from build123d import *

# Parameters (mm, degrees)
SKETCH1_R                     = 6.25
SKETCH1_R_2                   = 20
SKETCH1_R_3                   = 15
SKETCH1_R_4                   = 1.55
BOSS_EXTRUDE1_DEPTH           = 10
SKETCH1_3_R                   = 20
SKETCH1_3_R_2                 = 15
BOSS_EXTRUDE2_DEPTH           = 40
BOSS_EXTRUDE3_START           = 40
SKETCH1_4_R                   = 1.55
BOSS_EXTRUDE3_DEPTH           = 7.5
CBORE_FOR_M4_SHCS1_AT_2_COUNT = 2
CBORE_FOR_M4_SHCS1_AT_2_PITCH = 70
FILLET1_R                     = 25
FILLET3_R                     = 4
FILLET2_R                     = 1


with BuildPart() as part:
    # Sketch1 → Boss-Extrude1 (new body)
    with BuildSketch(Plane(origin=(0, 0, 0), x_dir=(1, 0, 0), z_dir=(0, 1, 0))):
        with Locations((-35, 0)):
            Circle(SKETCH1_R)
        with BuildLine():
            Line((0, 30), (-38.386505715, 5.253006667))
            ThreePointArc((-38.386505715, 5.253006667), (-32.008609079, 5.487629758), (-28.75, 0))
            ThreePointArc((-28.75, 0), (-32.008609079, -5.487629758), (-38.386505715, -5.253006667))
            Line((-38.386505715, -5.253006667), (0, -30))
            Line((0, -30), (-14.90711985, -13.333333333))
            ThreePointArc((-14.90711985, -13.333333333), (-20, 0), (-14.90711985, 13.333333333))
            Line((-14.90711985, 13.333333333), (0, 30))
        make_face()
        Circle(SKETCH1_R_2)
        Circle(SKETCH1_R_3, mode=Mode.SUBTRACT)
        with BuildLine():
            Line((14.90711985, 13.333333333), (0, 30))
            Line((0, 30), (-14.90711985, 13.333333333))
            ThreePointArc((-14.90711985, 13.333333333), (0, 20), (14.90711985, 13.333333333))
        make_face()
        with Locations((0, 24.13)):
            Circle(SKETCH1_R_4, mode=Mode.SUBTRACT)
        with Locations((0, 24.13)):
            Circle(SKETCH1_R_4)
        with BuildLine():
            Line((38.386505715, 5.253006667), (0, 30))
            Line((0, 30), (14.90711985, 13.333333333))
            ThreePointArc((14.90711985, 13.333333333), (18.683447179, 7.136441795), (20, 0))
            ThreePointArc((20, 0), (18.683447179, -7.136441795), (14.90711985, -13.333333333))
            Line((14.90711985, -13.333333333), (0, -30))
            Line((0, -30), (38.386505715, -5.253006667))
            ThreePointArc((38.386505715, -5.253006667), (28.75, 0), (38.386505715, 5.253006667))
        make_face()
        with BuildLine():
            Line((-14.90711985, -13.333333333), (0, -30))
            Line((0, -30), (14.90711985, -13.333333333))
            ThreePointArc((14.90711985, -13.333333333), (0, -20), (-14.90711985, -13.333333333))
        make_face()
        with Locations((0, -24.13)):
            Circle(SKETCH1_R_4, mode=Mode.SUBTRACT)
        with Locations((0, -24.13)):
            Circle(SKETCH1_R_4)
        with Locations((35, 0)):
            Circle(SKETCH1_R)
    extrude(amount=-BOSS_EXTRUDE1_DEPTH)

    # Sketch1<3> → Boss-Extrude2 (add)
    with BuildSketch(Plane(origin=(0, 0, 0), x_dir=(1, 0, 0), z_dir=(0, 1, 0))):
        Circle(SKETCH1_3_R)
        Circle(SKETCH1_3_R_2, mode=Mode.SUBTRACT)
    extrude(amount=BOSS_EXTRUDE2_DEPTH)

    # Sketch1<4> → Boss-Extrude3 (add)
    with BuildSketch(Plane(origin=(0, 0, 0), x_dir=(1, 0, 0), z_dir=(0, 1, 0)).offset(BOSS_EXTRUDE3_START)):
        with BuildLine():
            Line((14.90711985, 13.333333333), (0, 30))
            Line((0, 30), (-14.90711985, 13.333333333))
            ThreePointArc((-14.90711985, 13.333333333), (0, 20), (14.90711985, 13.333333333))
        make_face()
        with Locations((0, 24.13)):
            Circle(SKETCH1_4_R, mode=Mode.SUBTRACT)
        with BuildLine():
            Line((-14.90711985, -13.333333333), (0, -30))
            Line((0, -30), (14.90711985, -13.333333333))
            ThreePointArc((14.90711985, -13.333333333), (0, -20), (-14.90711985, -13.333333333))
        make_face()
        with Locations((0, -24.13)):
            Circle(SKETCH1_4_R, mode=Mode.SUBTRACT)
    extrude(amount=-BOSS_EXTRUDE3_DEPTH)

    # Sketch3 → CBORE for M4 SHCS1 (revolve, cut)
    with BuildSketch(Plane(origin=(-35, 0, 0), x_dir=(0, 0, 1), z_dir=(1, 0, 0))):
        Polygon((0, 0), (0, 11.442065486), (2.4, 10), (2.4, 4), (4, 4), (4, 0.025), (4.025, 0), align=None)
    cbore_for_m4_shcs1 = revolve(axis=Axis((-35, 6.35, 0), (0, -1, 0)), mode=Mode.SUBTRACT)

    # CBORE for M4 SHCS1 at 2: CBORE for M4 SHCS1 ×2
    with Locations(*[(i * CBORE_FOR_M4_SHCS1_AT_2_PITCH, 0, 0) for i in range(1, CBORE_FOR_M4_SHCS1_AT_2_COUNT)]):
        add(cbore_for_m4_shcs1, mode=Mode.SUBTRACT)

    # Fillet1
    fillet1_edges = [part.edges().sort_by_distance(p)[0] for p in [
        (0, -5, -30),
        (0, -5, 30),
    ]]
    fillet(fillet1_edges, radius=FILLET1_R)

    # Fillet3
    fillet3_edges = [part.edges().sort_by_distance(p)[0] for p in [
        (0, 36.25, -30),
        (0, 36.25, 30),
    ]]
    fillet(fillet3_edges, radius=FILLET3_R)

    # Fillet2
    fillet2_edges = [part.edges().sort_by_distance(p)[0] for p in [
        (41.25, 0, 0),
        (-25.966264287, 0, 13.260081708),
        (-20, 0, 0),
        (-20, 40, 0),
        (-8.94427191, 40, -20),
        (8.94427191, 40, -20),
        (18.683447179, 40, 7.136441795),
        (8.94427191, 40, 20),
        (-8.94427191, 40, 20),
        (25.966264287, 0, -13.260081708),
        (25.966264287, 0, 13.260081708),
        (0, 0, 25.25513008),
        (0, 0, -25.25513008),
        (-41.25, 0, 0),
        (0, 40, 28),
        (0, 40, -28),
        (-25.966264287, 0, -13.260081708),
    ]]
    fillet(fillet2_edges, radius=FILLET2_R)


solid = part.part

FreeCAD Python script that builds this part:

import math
import FreeCAD as App
import Part
import Sketcher
from FreeCAD import Vector
Q = App.Units.Quantity


def edges_at(feature, points):
    """Names of the edges that pass closest to the given points."""
    edges = feature.Shape.Edges
    near = lambda p: min(range(len(edges)), key=lambda i: edges[i].distToShape(Part.Vertex(*p))[0])
    return sorted({f"Edge{near(p) + 1}" for p in points})

doc = App.newDocument("Part")
body = doc.addObject("PartDesign::Body", "Body")

# Sketch on XZ plane
sketch1 = body.newObject("Sketcher::SketchObject", "Sketch")
sketch1.AttachmentSupport = (doc.getObject("XZ_Plane"), [""])
sketch1.MapMode = "FlatFace"
sketch1.addGeometry(Part.LineSegment(Vector(-38, 5, 0), Vector(0, 30, 0)), False)
sketch1.addGeometry(Part.LineSegment(Vector(0, 30, 0), Vector(38, 5, 0)), False)
sketch1.addGeometry(Part.ArcOfCircle(Part.Circle(Vector(35, 0, 0), Vector(0, 0, 1), 6), math.radians(-57), math.radians(57)), False)
sketch1.addGeometry(Part.LineSegment(Vector(38, -5, 0), Vector(0, -30, 0)), False)
sketch1.addGeometry(Part.LineSegment(Vector(0, -30, 0), Vector(-38, -5, 0)), False)
sketch1.addGeometry(Part.ArcOfCircle(Part.Circle(Vector(-35, 0, 0), Vector(0, 0, 1), 6), math.radians(123), math.radians(237)), False)
sketch1.addGeometry(Part.Circle(Vector(0, 0, 0), Vector(0, 0, 1), 15), False)
sketch1.addConstraint(Sketcher.Constraint("Coincident", 0, 2, 1, 1))
sketch1.addConstraint(Sketcher.Constraint("Tangent", 1, 2, 2, 2))
sketch1.addConstraint(Sketcher.Constraint("Tangent", 2, 1, 3, 1))
sketch1.addConstraint(Sketcher.Constraint("Coincident", 3, 2, 4, 1))
sketch1.addConstraint(Sketcher.Constraint("Tangent", 4, 2, 5, 2))
sketch1.addConstraint(Sketcher.Constraint("Tangent", 5, 1, 0, 1))
sketch1.addConstraint(Sketcher.Constraint("Coincident", 6, 3, -1, 1))
sketch1.addConstraint(Sketcher.Constraint("Equal", 2, 5))
sketch1.addConstraint(Sketcher.Constraint("Symmetric", 2, 3, 5, 3, -1, 1))
sketch1.addConstraint(Sketcher.Constraint("Symmetric", 0, 2, 3, 2, -1, 1))
sketch1.addConstraint(Sketcher.Constraint("Symmetric", 2, 1, 4, 2, -2))
sketch1.addConstraint(Sketcher.Constraint("Diameter", 6, Q("30 mm")))
sketch1.addConstraint(Sketcher.Constraint("Radius", 2, Q("6.25 mm")))
sketch1.addConstraint(Sketcher.Constraint("DistanceX", -1, 1, 2, 3, Q("35 mm")))
sketch1.addConstraint(Sketcher.Constraint("DistanceY", -1, 1, 0, 2, Q("30 mm")))
pad1 = body.newObject("PartDesign::Pad", "Pad")
pad1.Profile = sketch1
pad1.Length = 10

# Sketch on XZ plane
sketch2 = body.newObject("Sketcher::SketchObject", "Sketch001")
sketch2.AttachmentSupport = (doc.getObject("XZ_Plane"), [""])
sketch2.MapMode = "FlatFace"
sketch2.addGeometry(Part.Circle(Vector(0, 0, 0), Vector(0, 0, 1), 20), False)
sketch2.addGeometry(Part.Circle(Vector(0, 0, 0), Vector(0, 0, 1), 15), False)
sketch2.addConstraint(Sketcher.Constraint("Coincident", 0, 3, -1, 1))
sketch2.addConstraint(Sketcher.Constraint("Coincident", 1, 3, -1, 1))
sketch2.addConstraint(Sketcher.Constraint("Diameter", 0, Q("40 mm")))
sketch2.addConstraint(Sketcher.Constraint("Diameter", 1, Q("30 mm")))
pad2 = body.newObject("PartDesign::Pad", "Pad001")
pad2.Profile = sketch2
pad2.Length = 40
pad2.Reversed = True

# Sketch on XZ plane
sketch3 = body.newObject("Sketcher::SketchObject", "Sketch002")
sketch3.AttachmentSupport = (doc.getObject("XZ_Plane"), [""])
sketch3.MapMode = "FlatFace"
sketch3.AttachmentOffset = App.Placement(Vector(0, 0, -40), App.Rotation())
sketch3.addGeometry(Part.LineSegment(Vector(14.9, -13.3, 0), Vector(0, -30, 0)), False)
sketch3.addGeometry(Part.LineSegment(Vector(0, -30, 0), Vector(-14.9, -13.3, 0)), False)
sketch3.addGeometry(Part.ArcOfCircle(Part.Circle(Vector(0, 0, 0), Vector(0, 0, 1), 20), math.radians(-138), math.radians(-42)), False)
sketch3.addGeometry(Part.Circle(Vector(0, -24.1, 0), Vector(0, 0, 1), 1.6), False)
sketch3.addGeometry(Part.LineSegment(Vector(-14.9, 13.3, 0), Vector(0, 30, 0)), False)
sketch3.addGeometry(Part.LineSegment(Vector(0, 30, 0), Vector(14.9, 13.3, 0)), False)
sketch3.addGeometry(Part.ArcOfCircle(Part.Circle(Vector(0, 0, 0), Vector(0, 0, 1), 20), math.radians(42), math.radians(138)), False)
sketch3.addGeometry(Part.Circle(Vector(0, 24.1, 0), Vector(0, 0, 1), 1.6), False)
sketch3.addConstraint(Sketcher.Constraint("Coincident", 0, 2, 1, 1))
sketch3.addConstraint(Sketcher.Constraint("Tangent", 1, 2, 2, 1))
sketch3.addConstraint(Sketcher.Constraint("Tangent", 2, 2, 0, 1))
sketch3.addConstraint(Sketcher.Constraint("Coincident", 4, 2, 5, 1))
sketch3.addConstraint(Sketcher.Constraint("Tangent", 5, 2, 6, 1))
sketch3.addConstraint(Sketcher.Constraint("Tangent", 6, 2, 4, 1))
sketch3.addConstraint(Sketcher.Constraint("Coincident", 2, 3, -1, 1))
sketch3.addConstraint(Sketcher.Constraint("Coincident", 6, 3, -1, 1))
sketch3.addConstraint(Sketcher.Constraint("Equal", 2, 6))
sketch3.addConstraint(Sketcher.Constraint("Equal", 3, 7))
sketch3.addConstraint(Sketcher.Constraint("Symmetric", 3, 3, 7, 3, -1, 1))
sketch3.addConstraint(Sketcher.Constraint("Symmetric", 0, 2, 4, 2, -1, 1))
sketch3.addConstraint(Sketcher.Constraint("PointOnObject", 3, 3, -2))
sketch3.addConstraint(Sketcher.Constraint("PointOnObject", 0, 2, -2))
sketch3.addConstraint(Sketcher.Constraint("Radius", 2, Q("20 mm")))
sketch3.addConstraint(Sketcher.Constraint("Diameter", 3, Q("3.1 mm")))
sketch3.addConstraint(Sketcher.Constraint("DistanceY", 0, 2, -1, 1, Q("30 mm")))
sketch3.addConstraint(Sketcher.Constraint("DistanceY", 3, 3, -1, 1, Q("24.13 mm")))
pad3 = body.newObject("PartDesign::Pad", "Pad002")
pad3.Profile = sketch3
pad3.Length = 7.5

# Sketch on YZ plane
sketch4 = body.newObject("Sketcher::SketchObject", "Sketch003")
sketch4.AttachmentSupport = (doc.getObject("YZ_Plane"), [""])
sketch4.MapMode = "FlatFace"
sketch4.AttachmentOffset = App.Placement(Vector(0, 0, -35), App.Rotation())
sketch4.addGeometry(Part.LineSegment(Vector(-11.442, 0, 0), Vector(0, 0, 0)), False)
sketch4.addGeometry(Part.LineSegment(Vector(0, 0, 0), Vector(0, 4.025, 0)), False)
sketch4.addGeometry(Part.LineSegment(Vector(0, 4.025, 0), Vector(-0.025, 4, 0)), False)
sketch4.addGeometry(Part.LineSegment(Vector(-0.025, 4, 0), Vector(-4, 4, 0)), False)
sketch4.addGeometry(Part.LineSegment(Vector(-4, 4, 0), Vector(-4, 2.4, 0)), False)
sketch4.addGeometry(Part.LineSegment(Vector(-4, 2.4, 0), Vector(-10, 2.4, 0)), False)
sketch4.addGeometry(Part.LineSegment(Vector(-10, 2.4, 0), Vector(-11.442, 0, 0)), False)
sketch4.addConstraint(Sketcher.Constraint("Coincident", 0, 2, 1, 1))
sketch4.addConstraint(Sketcher.Constraint("Coincident", 1, 2, 2, 1))
sketch4.addConstraint(Sketcher.Constraint("Coincident", 2, 2, 3, 1))
sketch4.addConstraint(Sketcher.Constraint("Coincident", 3, 2, 4, 1))
sketch4.addConstraint(Sketcher.Constraint("Coincident", 4, 2, 5, 1))
sketch4.addConstraint(Sketcher.Constraint("Coincident", 5, 2, 6, 1))
sketch4.addConstraint(Sketcher.Constraint("Coincident", 6, 2, 0, 1))
sketch4.addConstraint(Sketcher.Constraint("Horizontal", 0))
sketch4.addConstraint(Sketcher.Constraint("Vertical", 1))
sketch4.addConstraint(Sketcher.Constraint("Horizontal", 3))
sketch4.addConstraint(Sketcher.Constraint("Vertical", 4))
sketch4.addConstraint(Sketcher.Constraint("Horizontal", 5))
sketch4.addConstraint(Sketcher.Constraint("Coincident", 0, 2, -1, 1))
sketch4.addConstraint(Sketcher.Constraint("DistanceX", 5, 2, 5, 1, Q("6 mm")))
sketch4.addConstraint(Sketcher.Constraint("Angle", 2, Q("-135 deg")))
sketch4.addConstraint(Sketcher.Constraint("Angle", 6, Q("-121 deg")))
sketch4.addConstraint(Sketcher.Constraint("DistanceY", 4, 2, 4, 1, Q("1.6 mm")))
sketch4.addConstraint(Sketcher.Constraint("DistanceY", -1, 1, 2, 2, Q("4 mm")))
sketch4.addConstraint(Sketcher.Constraint("DistanceX", 3, 2, -1, 1, Q("4 mm")))
sketch4.addConstraint(Sketcher.Constraint("DistanceX", 3, 2, 3, 1, Q("3.975 mm")))
groove = body.newObject("PartDesign::Groove", "Groove")
groove.Profile = sketch4
groove.ReferenceAxis = (sketch4, ["H_Axis"])
groove.Angle = 360
doc.recompute()

linearpattern = body.newObject("PartDesign::LinearPattern", "LinearPattern")
linearpattern.Originals = [groove]
linearpattern.Direction = (doc.getObject("X_Axis"), [""])
linearpattern.Mode = "offset"
linearpattern.Offset = 70
linearpattern.Occurrences = 2
body.Tip = linearpattern
doc.recompute()

fillet = body.newObject("PartDesign::Fillet", "Fillet")
fillet.Base = (linearpattern, edges_at(linearpattern, [(0, -5, -30), (0, -5, 30)]))
fillet.Radius = 25
doc.recompute()

fillet2 = body.newObject("PartDesign::Fillet", "Fillet001")
fillet2.Base = (fillet, edges_at(fillet, [(0, 36.25, -30), (0, 36.25, 30)]))
fillet2.Radius = 4
doc.recompute()

fillet3 = body.newObject("PartDesign::Fillet", "Fillet002")
fillet3.Base = (fillet2, edges_at(fillet2, [
    (41.25, 0, 0),
    (-25.966, 0, 13.26),
    (-20, 0, 0),
    (-20, 40, 0),
    (-8.944, 40, -20),
    (8.944, 40, -20),
    (18.683, 40, 7.136),
    (8.944, 40, 20),
    (-8.944, 40, 20),
    (25.966, 0, -13.26),
    (25.966, 0, 13.26),
    (0, 0, 25.255),
    (0, 0, -25.255),
    (-41.25, 0, 0),
    (0, 40, 28),
    (0, 40, -28),
    (-25.966, 0, -13.26),
]))
fillet3.Radius = 1

doc.recompute()
